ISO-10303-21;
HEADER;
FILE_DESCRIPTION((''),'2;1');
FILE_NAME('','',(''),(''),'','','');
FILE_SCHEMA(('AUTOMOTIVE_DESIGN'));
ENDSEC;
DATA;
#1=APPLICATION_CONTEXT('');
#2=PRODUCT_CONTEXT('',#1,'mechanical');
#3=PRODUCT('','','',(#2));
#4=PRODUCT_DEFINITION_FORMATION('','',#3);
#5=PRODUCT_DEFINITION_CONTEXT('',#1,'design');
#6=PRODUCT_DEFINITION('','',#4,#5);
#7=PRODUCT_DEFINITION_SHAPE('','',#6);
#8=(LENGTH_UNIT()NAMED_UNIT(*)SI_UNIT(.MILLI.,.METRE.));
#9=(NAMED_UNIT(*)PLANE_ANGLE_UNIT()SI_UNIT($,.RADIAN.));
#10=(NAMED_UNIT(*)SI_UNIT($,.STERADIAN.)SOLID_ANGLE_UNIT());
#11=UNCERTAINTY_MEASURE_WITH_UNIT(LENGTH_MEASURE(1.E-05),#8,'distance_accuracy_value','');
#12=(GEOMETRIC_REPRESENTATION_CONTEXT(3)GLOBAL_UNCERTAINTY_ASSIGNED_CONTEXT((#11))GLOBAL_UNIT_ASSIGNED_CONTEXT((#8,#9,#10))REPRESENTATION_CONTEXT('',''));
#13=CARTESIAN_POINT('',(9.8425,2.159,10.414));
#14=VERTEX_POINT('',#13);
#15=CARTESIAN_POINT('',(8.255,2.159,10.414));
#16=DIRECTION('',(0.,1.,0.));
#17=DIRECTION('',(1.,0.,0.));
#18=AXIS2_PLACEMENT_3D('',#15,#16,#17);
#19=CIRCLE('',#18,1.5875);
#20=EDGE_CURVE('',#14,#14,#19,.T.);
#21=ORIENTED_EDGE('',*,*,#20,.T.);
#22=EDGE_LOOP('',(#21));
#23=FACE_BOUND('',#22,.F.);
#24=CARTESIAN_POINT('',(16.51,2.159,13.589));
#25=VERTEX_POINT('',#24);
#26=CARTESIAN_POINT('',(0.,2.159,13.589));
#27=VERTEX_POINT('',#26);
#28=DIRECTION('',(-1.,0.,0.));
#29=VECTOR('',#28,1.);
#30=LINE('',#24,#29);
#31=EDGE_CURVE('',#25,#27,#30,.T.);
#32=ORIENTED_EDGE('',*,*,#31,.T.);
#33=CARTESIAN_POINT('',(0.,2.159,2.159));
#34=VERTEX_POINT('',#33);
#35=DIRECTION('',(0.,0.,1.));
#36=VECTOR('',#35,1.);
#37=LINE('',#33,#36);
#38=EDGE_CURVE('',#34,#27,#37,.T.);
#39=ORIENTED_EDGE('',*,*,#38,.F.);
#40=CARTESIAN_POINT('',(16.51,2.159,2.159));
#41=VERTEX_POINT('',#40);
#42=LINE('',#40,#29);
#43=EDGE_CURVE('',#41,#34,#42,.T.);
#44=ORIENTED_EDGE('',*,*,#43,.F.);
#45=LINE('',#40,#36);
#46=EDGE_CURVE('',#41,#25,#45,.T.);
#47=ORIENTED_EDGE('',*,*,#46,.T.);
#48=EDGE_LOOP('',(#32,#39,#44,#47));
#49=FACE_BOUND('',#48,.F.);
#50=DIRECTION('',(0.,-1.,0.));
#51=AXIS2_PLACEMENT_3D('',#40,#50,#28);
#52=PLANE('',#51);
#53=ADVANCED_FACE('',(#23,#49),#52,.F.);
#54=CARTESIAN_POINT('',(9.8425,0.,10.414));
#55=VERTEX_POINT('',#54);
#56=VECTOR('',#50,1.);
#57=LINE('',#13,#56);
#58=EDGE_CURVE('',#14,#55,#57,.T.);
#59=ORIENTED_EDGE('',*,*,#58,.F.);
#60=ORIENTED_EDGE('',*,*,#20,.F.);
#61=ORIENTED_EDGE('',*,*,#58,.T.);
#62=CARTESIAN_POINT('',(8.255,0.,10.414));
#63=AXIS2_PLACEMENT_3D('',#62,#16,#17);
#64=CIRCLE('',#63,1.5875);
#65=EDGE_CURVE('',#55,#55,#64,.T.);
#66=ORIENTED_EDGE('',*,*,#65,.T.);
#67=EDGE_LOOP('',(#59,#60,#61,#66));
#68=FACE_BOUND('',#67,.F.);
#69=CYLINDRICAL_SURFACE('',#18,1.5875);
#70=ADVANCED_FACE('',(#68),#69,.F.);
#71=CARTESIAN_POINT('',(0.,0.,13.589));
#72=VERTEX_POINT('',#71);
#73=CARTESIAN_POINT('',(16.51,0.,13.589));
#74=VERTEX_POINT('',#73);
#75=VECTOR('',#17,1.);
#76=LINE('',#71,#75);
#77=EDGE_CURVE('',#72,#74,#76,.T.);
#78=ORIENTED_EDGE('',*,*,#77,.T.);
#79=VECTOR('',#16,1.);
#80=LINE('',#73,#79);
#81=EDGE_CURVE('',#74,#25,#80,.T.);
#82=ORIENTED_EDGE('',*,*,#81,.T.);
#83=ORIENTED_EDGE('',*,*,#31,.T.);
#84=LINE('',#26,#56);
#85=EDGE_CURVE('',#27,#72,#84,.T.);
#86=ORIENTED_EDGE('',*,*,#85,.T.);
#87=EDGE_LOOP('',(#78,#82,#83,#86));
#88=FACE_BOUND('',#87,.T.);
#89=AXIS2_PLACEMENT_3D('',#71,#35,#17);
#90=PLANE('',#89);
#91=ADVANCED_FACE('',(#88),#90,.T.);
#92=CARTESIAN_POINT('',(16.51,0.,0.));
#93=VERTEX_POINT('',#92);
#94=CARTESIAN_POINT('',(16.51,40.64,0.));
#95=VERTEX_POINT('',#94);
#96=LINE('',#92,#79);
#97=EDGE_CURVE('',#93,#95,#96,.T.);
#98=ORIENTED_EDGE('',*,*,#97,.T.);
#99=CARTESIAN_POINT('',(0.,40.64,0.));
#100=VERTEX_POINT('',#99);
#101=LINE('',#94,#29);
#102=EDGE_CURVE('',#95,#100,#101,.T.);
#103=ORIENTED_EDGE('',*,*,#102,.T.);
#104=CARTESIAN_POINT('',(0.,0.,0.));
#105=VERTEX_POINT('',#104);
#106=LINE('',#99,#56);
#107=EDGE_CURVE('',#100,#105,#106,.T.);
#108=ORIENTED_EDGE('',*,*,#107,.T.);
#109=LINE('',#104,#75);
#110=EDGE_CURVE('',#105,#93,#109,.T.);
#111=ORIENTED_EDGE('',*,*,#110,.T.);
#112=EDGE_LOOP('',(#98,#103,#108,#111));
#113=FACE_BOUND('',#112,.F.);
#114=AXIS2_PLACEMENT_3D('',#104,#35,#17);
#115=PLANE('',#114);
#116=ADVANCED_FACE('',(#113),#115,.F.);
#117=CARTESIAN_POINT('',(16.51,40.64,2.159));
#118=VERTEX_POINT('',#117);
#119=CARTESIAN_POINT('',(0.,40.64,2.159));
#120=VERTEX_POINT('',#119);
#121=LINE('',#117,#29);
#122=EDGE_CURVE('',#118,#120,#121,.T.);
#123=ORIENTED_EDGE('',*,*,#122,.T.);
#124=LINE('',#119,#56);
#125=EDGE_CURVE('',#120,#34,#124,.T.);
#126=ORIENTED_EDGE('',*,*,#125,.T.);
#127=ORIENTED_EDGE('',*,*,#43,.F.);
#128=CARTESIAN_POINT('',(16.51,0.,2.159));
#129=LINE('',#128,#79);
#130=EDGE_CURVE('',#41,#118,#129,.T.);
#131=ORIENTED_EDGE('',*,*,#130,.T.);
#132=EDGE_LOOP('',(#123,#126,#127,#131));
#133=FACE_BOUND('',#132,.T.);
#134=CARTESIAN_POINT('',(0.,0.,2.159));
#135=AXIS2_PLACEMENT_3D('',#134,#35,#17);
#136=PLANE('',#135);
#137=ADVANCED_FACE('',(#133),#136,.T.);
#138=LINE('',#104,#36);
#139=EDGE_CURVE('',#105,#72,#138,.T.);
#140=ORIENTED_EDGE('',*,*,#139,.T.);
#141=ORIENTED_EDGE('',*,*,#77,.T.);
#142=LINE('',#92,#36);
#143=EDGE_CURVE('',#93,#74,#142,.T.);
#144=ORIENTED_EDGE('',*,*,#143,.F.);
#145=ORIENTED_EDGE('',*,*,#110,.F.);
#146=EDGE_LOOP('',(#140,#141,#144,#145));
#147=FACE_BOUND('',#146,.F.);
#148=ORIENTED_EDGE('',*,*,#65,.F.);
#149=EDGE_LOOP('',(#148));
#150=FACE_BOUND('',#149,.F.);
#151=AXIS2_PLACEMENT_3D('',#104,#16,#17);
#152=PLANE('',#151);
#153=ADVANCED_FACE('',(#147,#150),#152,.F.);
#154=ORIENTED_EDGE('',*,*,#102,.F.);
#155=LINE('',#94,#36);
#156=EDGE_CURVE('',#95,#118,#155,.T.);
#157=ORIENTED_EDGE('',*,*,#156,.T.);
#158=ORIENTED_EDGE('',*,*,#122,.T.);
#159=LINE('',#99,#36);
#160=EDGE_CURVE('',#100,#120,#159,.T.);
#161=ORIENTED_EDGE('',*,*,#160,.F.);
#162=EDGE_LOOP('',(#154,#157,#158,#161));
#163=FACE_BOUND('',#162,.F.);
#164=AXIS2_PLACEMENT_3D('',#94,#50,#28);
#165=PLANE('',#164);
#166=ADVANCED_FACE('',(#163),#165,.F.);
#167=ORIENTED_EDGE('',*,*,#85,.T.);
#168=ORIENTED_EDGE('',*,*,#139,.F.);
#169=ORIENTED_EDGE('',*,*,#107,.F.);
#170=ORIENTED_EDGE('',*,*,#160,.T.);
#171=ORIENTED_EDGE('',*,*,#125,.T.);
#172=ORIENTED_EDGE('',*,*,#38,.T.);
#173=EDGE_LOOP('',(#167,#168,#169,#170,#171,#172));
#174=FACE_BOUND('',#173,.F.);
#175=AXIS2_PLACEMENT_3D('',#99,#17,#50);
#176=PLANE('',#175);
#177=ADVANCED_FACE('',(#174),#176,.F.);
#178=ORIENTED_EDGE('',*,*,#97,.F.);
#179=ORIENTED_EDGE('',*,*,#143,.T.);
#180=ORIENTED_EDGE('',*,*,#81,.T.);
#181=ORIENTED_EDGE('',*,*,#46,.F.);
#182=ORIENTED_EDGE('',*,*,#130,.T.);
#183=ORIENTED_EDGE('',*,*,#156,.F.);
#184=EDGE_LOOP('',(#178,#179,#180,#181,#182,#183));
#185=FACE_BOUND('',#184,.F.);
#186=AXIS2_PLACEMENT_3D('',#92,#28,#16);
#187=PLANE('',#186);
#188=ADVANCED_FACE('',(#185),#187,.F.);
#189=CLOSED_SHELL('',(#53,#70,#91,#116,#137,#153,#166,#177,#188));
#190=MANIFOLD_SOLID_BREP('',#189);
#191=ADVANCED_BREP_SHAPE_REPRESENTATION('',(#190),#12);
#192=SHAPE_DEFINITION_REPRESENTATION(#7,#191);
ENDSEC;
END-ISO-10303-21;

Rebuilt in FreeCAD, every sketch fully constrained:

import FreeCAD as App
import Part
import Sketcher
from FreeCAD import Vector
Q = App.Units.Quantity

doc = App.newDocument("Part")
params = doc.addObject("Spreadsheet::Sheet", "Params")
for row, (alias, value) in enumerate([
    ("sketch1_height", "1.6 in"),
    ("sketch1_width", "0.65 in"),
    ("pad1_length", "0.085 in"),
    ("sketch2_height", "0.085 in"),
    ("sketch2_width", "0.65 in"),
    ("pad2_length", "0.45 in"),
    ("sketch3_diameter", "0.125 in"),
    ("pocket1_length", "0.45 in"),
], start=1):
    params.set(f"A{row}", alias)
    params.set(f"B{row}", "=" + value)
    params.setAlias(f"B{row}", alias)

body = doc.addObject("PartDesign::Body", "Body")

# Sketch on XY plane
sketch1 = body.newObject("Sketcher::SketchObject", "Sketch")
sketch1.AttachmentSupport = (doc.getObject("XY_Plane"), [""])
sketch1.MapMode = "FlatFace"
sketch1.addGeometry([
    Part.LineSegment(Vector(0, 41, 0), Vector(0, 0, 0)),
    Part.LineSegment(Vector(0, 0, 0), Vector(17, 0, 0)),
    Part.LineSegment(Vector(17, 0, 0), Vector(17, 41, 0)),
    Part.LineSegment(Vector(17, 41, 0), Vector(0, 41, 0)),
], False)
sketch1.addConstraint([
    Sketcher.Constraint("Coincident", 0, 2, 1, 1),
    Sketcher.Constraint("Coincident", 1, 2, 2, 1),
    Sketcher.Constraint("Coincident", 2, 2, 3, 1),
    Sketcher.Constraint("Coincident", 3, 2, 0, 1),
    Sketcher.Constraint("Vertical", 0),
    Sketcher.Constraint("Horizontal", 1),
    Sketcher.Constraint("Vertical", 2),
    Sketcher.Constraint("Horizontal", 3),
    Sketcher.Constraint("Coincident", 0, 2, -1, 1),
    Sketcher.Constraint("DistanceY", 0, 2, 0, 1, Q("1.6 in")),
    Sketcher.Constraint("DistanceX", 1, 1, 1, 2, Q("0.65 in")),
])
sketch1.setExpression("Constraints[9]", "Params.sketch1_height")
sketch1.setExpression("Constraints[10]", "Params.sketch1_width")
pad1 = body.newObject("PartDesign::Pad", "Pad")
pad1.Profile = sketch1
pad1.setExpression("Length", "Params.pad1_length")

# Sketch on XY plane
sketch2 = body.newObject("Sketcher::SketchObject", "Sketch001")
sketch2.AttachmentSupport = (doc.getObject("XY_Plane"), [""])
sketch2.MapMode = "FlatFace"
sketch2.AttachmentOffset = App.Placement(Vector(0, 0, 0.085 * 25.4), App.Rotation())
sketch2.addGeometry([
    Part.LineSegment(Vector(0, 2.2, 0), Vector(0, 0, 0)),
    Part.LineSegment(Vector(0, 0, 0), Vector(16.5, 0, 0)),
    Part.LineSegment(Vector(16.5, 0, 0), Vector(16.5, 2.2, 0)),
    Part.LineSegment(Vector(16.5, 2.2, 0), Vector(0, 2.2, 0)),
], False)
sketch2.addConstraint([
    Sketcher.Constraint("Coincident", 0, 2, 1, 1),
    Sketcher.Constraint("Coincident", 1, 2, 2, 1),
    Sketcher.Constraint("Coincident", 2, 2, 3, 1),
    Sketcher.Constraint("Coincident", 3, 2, 0, 1),
    Sketcher.Constraint("Vertical", 0),
    Sketcher.Constraint("Horizontal", 1),
    Sketcher.Constraint("Vertical", 2),
    Sketcher.Constraint("Horizontal", 3),
    Sketcher.Constraint("Coincident", 0, 2, -1, 1),
    Sketcher.Constraint("DistanceY", 0, 2, 0, 1, Q("0.085 in")),
    Sketcher.Constraint("DistanceX", 1, 1, 1, 2, Q("0.65 in")),
])
sketch2.setExpression("Constraints[9]", "Params.sketch2_height")
sketch2.setExpression("Constraints[10]", "Params.sketch2_width")
pad2 = body.newObject("PartDesign::Pad", "Pad001")
pad2.Profile = sketch2
pad2.setExpression("Length", "Params.pad2_length")

# Sketch on XZ plane
sketch3 = body.newObject("Sketcher::SketchObject", "Sketch002")
sketch3.AttachmentSupport = (doc.getObject("XZ_Plane"), [""])
sketch3.MapMode = "FlatFace"
sketch3.AttachmentOffset = App.Placement(Vector(0, 0, -0.085 * 25.4), App.Rotation())
sketch3.addGeometry(Part.Circle(Vector(8.3, 10.4, 0), Vector(0, 0, 1), 1.6), False)
sketch3.addConstraint([
    Sketcher.Constraint("Diameter", 0, Q("0.125 in")),
    Sketcher.Constraint("DistanceY", -1, 1, 0, 3, Q("0.41 in")),
    Sketcher.Constraint("DistanceX", -1, 1, 0, 3, Q("0.325 in")),
])
sketch3.setExpression("Constraints[0]", "Params.sketch3_diameter")
pocket1 = body.newObject("PartDesign::Pocket", "Pocket")
pocket1.Profile = sketch3
pocket1.setExpression("Length", "Params.pocket1_length")
pocket1.Reversed = True

doc.recompute()
